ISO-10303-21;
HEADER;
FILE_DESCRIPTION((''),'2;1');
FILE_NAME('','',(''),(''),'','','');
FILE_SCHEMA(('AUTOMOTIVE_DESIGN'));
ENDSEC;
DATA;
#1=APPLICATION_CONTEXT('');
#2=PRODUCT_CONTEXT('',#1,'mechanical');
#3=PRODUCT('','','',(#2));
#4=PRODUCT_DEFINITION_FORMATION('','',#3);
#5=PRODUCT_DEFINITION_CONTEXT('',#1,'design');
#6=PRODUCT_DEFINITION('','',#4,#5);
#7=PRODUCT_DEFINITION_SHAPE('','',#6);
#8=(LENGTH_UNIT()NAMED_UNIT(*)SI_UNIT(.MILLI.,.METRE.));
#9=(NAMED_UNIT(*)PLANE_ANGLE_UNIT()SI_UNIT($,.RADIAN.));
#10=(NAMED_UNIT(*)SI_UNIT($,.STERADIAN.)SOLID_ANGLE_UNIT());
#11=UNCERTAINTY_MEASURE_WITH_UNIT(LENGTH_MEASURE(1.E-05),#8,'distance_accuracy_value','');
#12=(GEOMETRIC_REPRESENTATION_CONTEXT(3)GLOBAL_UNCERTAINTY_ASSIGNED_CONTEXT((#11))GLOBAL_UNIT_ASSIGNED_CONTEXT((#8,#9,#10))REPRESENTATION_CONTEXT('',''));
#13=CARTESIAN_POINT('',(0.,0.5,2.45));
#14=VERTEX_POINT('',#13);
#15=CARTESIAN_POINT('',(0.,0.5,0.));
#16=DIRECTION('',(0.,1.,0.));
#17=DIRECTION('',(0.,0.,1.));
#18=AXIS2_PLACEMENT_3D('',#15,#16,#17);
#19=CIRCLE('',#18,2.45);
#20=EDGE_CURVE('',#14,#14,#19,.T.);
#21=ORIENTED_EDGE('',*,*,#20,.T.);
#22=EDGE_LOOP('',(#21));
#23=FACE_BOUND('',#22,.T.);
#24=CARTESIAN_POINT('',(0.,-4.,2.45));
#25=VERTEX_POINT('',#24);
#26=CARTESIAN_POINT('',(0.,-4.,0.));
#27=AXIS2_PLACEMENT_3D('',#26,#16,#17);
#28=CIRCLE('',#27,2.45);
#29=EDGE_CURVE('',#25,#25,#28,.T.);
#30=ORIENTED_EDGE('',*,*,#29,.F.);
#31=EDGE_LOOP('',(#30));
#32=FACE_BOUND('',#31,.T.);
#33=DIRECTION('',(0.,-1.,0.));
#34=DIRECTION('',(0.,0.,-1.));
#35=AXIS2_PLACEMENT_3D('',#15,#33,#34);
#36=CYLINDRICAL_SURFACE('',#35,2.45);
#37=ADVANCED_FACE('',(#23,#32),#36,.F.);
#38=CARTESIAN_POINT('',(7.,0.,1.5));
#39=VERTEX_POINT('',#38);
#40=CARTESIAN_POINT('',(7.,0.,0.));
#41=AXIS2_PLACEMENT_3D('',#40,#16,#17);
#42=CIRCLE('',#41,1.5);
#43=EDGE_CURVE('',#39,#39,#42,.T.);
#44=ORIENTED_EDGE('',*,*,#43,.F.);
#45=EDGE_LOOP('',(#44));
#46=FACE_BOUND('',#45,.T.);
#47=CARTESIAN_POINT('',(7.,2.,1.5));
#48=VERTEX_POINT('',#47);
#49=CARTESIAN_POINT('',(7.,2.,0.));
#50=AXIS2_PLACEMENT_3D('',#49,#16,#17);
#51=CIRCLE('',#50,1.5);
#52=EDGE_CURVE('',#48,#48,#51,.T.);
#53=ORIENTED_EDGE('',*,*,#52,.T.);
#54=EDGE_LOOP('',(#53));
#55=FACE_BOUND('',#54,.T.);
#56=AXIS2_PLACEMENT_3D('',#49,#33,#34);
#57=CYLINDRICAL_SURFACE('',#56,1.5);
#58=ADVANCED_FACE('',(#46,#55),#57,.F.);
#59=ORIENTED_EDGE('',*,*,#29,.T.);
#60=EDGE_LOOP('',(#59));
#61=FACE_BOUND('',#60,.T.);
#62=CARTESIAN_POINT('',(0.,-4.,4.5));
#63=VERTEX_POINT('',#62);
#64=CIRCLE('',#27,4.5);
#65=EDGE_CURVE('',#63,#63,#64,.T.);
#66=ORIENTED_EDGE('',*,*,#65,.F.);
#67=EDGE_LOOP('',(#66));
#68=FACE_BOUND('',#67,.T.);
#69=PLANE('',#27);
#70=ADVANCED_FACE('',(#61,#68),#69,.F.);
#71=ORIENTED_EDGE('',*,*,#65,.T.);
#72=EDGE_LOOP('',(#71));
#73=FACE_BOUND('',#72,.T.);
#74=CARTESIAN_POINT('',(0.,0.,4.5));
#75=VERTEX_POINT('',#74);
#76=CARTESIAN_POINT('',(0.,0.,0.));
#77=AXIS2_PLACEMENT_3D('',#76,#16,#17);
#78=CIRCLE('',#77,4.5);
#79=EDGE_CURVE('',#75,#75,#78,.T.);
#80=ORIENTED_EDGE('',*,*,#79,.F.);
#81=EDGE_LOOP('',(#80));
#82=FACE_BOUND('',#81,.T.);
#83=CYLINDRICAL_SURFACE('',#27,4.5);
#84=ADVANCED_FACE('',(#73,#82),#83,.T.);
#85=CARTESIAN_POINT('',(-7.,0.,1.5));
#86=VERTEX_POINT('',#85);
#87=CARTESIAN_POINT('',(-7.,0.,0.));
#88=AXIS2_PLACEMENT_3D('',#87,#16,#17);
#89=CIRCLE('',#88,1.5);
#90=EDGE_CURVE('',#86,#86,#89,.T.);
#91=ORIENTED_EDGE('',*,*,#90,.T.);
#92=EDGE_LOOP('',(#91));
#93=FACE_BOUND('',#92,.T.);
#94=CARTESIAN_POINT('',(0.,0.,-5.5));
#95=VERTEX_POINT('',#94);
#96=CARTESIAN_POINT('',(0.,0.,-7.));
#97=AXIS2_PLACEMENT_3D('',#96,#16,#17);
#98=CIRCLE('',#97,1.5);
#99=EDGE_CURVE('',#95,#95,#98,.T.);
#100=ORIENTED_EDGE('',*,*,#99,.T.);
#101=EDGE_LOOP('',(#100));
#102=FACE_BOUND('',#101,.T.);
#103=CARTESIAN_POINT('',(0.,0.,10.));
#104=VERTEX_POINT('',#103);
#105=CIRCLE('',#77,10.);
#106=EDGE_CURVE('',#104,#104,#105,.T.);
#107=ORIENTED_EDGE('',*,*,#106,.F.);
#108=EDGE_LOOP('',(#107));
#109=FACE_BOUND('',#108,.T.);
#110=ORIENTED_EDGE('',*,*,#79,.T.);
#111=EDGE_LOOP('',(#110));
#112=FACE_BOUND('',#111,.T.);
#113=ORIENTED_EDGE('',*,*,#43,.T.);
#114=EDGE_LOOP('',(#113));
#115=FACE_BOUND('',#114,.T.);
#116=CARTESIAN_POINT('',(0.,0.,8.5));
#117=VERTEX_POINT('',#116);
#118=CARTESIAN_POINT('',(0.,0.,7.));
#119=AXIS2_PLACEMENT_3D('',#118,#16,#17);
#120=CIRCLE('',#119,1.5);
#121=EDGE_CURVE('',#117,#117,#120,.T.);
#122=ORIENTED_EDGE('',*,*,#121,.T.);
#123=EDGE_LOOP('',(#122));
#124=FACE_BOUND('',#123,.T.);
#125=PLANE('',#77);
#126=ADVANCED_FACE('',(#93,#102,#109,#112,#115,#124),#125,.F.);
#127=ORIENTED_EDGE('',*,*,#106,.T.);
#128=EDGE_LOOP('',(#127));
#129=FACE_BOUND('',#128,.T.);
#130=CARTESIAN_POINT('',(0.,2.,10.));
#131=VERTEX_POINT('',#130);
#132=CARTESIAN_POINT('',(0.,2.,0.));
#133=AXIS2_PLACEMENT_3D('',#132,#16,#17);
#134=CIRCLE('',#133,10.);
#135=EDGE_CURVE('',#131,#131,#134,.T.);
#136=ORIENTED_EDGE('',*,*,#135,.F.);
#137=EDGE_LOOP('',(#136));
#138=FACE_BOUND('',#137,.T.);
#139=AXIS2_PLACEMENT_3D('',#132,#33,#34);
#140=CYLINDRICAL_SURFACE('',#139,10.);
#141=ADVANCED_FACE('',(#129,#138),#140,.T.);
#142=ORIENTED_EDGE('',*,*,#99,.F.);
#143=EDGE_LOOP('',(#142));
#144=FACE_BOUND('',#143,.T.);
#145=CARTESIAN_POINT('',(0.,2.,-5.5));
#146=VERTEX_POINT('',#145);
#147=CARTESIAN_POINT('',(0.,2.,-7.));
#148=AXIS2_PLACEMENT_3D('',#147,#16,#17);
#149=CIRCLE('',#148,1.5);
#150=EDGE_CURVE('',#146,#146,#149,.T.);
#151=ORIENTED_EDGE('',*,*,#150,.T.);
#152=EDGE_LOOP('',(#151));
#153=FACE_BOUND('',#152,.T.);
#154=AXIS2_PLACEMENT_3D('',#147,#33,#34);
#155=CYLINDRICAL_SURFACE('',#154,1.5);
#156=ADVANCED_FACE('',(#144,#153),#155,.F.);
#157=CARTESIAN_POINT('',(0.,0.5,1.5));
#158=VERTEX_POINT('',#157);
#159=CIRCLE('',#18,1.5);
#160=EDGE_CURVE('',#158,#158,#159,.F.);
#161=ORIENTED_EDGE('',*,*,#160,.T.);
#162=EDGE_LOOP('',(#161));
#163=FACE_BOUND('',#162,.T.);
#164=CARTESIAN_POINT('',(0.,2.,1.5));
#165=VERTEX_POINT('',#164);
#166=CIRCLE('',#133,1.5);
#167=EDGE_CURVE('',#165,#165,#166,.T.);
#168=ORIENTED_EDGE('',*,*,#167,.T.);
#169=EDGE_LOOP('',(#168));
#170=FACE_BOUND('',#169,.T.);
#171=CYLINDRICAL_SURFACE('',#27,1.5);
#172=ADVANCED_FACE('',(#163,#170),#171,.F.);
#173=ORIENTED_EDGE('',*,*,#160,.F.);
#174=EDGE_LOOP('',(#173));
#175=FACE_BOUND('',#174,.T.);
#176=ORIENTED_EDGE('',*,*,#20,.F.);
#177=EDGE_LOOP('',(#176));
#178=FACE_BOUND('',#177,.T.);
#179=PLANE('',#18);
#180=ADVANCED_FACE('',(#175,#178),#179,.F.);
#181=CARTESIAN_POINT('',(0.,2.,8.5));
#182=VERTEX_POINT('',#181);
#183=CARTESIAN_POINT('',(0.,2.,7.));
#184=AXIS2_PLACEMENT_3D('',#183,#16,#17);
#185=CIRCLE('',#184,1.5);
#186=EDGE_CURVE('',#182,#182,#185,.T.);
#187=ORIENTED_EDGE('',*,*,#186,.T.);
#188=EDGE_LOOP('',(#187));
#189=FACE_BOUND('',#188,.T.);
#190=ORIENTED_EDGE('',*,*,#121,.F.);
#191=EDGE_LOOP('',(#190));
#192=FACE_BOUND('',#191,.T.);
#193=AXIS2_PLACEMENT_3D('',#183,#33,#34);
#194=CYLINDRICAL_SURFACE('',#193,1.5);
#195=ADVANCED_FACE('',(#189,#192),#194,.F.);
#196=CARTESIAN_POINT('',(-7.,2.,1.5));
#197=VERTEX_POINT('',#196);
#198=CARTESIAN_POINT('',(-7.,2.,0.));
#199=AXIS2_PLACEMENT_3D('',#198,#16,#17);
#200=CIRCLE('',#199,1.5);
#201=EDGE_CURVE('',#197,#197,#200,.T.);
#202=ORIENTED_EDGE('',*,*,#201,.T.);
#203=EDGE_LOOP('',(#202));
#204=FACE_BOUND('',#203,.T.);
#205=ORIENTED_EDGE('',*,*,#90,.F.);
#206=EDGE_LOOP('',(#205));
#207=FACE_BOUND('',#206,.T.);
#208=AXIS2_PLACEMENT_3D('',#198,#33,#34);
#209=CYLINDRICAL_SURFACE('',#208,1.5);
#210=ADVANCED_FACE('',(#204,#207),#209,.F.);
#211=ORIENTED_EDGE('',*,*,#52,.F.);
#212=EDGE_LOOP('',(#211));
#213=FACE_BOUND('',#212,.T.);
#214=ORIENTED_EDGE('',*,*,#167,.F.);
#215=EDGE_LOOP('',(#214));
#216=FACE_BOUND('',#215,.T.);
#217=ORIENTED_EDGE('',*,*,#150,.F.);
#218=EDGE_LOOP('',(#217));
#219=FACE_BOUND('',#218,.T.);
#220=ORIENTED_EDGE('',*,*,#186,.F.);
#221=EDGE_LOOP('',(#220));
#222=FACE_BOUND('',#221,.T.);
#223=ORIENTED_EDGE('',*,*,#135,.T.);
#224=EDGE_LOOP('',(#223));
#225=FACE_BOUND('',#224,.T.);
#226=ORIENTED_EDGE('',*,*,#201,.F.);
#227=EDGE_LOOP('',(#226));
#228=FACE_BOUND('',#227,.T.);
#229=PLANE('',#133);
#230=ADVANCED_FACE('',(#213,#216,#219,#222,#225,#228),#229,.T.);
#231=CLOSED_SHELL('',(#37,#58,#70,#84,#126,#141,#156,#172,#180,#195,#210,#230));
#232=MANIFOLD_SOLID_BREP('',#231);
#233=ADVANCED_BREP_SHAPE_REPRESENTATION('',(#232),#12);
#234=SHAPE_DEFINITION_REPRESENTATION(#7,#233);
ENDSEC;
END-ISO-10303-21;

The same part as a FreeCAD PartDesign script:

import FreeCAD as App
import Part
import Sketcher
from FreeCAD import Vector

doc = App.newDocument("Part")
body = doc.addObject("PartDesign::Body", "Body")

# Sketch on XZ plane
sketch1 = doc.addObject("Sketcher::SketchObject", "Sketch")
body.addObject(sketch1)
sketch1.AttachmentSupport = (doc.XZ_Plane, [""])
sketch1.MapMode = "FlatFace"
sketch1.addGeometry([
    Part.Circle(Vector(0, 0, 0), Vector(0, 0, 1), 10),  # 0
    Part.Circle(Vector(0, -7, 0), Vector(0, 0, 1), 1.5),  # 1
    Part.Circle(Vector(-7, 0, 0), Vector(0, 0, 1), 1.5),  # 2
    Part.Circle(Vector(7, 0, 0), Vector(0, 0, 1), 1.5),  # 3
    Part.Circle(Vector(0, 7, 0), Vector(0, 0, 1), 1.5),  # 4
], False)
sketch1.addConstraint([
    Sketcher.Constraint("Coincident", 0, 3, -1, 1),
    Sketcher.Constraint("Equal", 1, 2),
    Sketcher.Constraint("Equal", 2, 3),
    Sketcher.Constraint("Equal", 3, 4),
    Sketcher.Constraint("Symmetric", 2, 3, 3, 3, -1, 1),
    Sketcher.Constraint("Symmetric", 1, 3, 4, 3, -1, 1),
    Sketcher.Constraint("PointOnObject", 1, 3, -2),
    Sketcher.Constraint("PointOnObject", 2, 3, -1),
    Sketcher.Constraint("Diameter", 0, 20.0),
    Sketcher.Constraint("Diameter", 1, 3.0),
    Sketcher.Constraint("DistanceY", 1, 3, -1, 1, 7.0),
    Sketcher.Constraint("DistanceX", 2, 3, -1, 1, 7.0),
])
pad1 = doc.addObject("PartDesign::Pad", "Pad")
body.addObject(pad1)
pad1.Profile = sketch1
pad1.Length = 2
pad1.Reversed = True

# Sketch on XZ plane
sketch2 = doc.addObject("Sketcher::SketchObject", "Sketch001")
body.addObject(sketch2)
sketch2.AttachmentSupport = (doc.XZ_Plane, [""])
sketch2.MapMode = "FlatFace"
sketch2.addGeometry(Part.Circle(Vector(0, 0, 0), Vector(0, 0, 1), 4.5), False)
sketch2.addConstraint([
    Sketcher.Constraint("Coincident", 0, 3, -1, 1),
    Sketcher.Constraint("Diameter", 0, 9.0),
])
pad2 = doc.addObject("PartDesign::Pad", "Pad001")
body.addObject(pad2)
pad2.Profile = sketch2
pad2.Length = 4

# Sketch on XZ plane
sketch3 = doc.addObject("Sketcher::SketchObject", "Sketch002")
body.addObject(sketch3)
sketch3.AttachmentSupport = (doc.XZ_Plane, [""])
sketch3.MapMode = "FlatFace"
sketch3.addGeometry(Part.Circle(Vector(0, 0, 0), Vector(0, 0, 1), 1.5), False)
sketch3.addConstraint([
    Sketcher.Constraint("Coincident", 0, 3, -1, 1),
    Sketcher.Constraint("Diameter", 0, 3.0),
])
pocket1 = doc.addObject("PartDesign::Pocket", "Pocket")
body.addObject(pocket1)
pocket1.Profile = sketch3
pocket1.Type = "ThroughAll"
pocket1.Midplane = True

# Sketch on XZ plane
sketch4 = doc.addObject("Sketcher::SketchObject", "Sketch003")
body.addObject(sketch4)
sketch4.AttachmentSupport = (doc.XZ_Plane, [""])
sketch4.MapMode = "FlatFace"
sketch4.AttachmentOffset = App.Placement(Vector(0, 0, 4), App.Rotation())
sketch4.addGeometry(Part.Circle(Vector(0, 0, 0), Vector(0, 0, 1), 2.5), False)
sketch4.addConstraint([
    Sketcher.Constraint("Coincident", 0, 3, -1, 1),
    Sketcher.Constraint("Diameter", 0, 4.9),
])
pocket2 = doc.addObject("PartDesign::Pocket", "Pocket001")
body.addObject(pocket2)
pocket2.Profile = sketch4
pocket2.Length = 4.5

doc.recompute()
